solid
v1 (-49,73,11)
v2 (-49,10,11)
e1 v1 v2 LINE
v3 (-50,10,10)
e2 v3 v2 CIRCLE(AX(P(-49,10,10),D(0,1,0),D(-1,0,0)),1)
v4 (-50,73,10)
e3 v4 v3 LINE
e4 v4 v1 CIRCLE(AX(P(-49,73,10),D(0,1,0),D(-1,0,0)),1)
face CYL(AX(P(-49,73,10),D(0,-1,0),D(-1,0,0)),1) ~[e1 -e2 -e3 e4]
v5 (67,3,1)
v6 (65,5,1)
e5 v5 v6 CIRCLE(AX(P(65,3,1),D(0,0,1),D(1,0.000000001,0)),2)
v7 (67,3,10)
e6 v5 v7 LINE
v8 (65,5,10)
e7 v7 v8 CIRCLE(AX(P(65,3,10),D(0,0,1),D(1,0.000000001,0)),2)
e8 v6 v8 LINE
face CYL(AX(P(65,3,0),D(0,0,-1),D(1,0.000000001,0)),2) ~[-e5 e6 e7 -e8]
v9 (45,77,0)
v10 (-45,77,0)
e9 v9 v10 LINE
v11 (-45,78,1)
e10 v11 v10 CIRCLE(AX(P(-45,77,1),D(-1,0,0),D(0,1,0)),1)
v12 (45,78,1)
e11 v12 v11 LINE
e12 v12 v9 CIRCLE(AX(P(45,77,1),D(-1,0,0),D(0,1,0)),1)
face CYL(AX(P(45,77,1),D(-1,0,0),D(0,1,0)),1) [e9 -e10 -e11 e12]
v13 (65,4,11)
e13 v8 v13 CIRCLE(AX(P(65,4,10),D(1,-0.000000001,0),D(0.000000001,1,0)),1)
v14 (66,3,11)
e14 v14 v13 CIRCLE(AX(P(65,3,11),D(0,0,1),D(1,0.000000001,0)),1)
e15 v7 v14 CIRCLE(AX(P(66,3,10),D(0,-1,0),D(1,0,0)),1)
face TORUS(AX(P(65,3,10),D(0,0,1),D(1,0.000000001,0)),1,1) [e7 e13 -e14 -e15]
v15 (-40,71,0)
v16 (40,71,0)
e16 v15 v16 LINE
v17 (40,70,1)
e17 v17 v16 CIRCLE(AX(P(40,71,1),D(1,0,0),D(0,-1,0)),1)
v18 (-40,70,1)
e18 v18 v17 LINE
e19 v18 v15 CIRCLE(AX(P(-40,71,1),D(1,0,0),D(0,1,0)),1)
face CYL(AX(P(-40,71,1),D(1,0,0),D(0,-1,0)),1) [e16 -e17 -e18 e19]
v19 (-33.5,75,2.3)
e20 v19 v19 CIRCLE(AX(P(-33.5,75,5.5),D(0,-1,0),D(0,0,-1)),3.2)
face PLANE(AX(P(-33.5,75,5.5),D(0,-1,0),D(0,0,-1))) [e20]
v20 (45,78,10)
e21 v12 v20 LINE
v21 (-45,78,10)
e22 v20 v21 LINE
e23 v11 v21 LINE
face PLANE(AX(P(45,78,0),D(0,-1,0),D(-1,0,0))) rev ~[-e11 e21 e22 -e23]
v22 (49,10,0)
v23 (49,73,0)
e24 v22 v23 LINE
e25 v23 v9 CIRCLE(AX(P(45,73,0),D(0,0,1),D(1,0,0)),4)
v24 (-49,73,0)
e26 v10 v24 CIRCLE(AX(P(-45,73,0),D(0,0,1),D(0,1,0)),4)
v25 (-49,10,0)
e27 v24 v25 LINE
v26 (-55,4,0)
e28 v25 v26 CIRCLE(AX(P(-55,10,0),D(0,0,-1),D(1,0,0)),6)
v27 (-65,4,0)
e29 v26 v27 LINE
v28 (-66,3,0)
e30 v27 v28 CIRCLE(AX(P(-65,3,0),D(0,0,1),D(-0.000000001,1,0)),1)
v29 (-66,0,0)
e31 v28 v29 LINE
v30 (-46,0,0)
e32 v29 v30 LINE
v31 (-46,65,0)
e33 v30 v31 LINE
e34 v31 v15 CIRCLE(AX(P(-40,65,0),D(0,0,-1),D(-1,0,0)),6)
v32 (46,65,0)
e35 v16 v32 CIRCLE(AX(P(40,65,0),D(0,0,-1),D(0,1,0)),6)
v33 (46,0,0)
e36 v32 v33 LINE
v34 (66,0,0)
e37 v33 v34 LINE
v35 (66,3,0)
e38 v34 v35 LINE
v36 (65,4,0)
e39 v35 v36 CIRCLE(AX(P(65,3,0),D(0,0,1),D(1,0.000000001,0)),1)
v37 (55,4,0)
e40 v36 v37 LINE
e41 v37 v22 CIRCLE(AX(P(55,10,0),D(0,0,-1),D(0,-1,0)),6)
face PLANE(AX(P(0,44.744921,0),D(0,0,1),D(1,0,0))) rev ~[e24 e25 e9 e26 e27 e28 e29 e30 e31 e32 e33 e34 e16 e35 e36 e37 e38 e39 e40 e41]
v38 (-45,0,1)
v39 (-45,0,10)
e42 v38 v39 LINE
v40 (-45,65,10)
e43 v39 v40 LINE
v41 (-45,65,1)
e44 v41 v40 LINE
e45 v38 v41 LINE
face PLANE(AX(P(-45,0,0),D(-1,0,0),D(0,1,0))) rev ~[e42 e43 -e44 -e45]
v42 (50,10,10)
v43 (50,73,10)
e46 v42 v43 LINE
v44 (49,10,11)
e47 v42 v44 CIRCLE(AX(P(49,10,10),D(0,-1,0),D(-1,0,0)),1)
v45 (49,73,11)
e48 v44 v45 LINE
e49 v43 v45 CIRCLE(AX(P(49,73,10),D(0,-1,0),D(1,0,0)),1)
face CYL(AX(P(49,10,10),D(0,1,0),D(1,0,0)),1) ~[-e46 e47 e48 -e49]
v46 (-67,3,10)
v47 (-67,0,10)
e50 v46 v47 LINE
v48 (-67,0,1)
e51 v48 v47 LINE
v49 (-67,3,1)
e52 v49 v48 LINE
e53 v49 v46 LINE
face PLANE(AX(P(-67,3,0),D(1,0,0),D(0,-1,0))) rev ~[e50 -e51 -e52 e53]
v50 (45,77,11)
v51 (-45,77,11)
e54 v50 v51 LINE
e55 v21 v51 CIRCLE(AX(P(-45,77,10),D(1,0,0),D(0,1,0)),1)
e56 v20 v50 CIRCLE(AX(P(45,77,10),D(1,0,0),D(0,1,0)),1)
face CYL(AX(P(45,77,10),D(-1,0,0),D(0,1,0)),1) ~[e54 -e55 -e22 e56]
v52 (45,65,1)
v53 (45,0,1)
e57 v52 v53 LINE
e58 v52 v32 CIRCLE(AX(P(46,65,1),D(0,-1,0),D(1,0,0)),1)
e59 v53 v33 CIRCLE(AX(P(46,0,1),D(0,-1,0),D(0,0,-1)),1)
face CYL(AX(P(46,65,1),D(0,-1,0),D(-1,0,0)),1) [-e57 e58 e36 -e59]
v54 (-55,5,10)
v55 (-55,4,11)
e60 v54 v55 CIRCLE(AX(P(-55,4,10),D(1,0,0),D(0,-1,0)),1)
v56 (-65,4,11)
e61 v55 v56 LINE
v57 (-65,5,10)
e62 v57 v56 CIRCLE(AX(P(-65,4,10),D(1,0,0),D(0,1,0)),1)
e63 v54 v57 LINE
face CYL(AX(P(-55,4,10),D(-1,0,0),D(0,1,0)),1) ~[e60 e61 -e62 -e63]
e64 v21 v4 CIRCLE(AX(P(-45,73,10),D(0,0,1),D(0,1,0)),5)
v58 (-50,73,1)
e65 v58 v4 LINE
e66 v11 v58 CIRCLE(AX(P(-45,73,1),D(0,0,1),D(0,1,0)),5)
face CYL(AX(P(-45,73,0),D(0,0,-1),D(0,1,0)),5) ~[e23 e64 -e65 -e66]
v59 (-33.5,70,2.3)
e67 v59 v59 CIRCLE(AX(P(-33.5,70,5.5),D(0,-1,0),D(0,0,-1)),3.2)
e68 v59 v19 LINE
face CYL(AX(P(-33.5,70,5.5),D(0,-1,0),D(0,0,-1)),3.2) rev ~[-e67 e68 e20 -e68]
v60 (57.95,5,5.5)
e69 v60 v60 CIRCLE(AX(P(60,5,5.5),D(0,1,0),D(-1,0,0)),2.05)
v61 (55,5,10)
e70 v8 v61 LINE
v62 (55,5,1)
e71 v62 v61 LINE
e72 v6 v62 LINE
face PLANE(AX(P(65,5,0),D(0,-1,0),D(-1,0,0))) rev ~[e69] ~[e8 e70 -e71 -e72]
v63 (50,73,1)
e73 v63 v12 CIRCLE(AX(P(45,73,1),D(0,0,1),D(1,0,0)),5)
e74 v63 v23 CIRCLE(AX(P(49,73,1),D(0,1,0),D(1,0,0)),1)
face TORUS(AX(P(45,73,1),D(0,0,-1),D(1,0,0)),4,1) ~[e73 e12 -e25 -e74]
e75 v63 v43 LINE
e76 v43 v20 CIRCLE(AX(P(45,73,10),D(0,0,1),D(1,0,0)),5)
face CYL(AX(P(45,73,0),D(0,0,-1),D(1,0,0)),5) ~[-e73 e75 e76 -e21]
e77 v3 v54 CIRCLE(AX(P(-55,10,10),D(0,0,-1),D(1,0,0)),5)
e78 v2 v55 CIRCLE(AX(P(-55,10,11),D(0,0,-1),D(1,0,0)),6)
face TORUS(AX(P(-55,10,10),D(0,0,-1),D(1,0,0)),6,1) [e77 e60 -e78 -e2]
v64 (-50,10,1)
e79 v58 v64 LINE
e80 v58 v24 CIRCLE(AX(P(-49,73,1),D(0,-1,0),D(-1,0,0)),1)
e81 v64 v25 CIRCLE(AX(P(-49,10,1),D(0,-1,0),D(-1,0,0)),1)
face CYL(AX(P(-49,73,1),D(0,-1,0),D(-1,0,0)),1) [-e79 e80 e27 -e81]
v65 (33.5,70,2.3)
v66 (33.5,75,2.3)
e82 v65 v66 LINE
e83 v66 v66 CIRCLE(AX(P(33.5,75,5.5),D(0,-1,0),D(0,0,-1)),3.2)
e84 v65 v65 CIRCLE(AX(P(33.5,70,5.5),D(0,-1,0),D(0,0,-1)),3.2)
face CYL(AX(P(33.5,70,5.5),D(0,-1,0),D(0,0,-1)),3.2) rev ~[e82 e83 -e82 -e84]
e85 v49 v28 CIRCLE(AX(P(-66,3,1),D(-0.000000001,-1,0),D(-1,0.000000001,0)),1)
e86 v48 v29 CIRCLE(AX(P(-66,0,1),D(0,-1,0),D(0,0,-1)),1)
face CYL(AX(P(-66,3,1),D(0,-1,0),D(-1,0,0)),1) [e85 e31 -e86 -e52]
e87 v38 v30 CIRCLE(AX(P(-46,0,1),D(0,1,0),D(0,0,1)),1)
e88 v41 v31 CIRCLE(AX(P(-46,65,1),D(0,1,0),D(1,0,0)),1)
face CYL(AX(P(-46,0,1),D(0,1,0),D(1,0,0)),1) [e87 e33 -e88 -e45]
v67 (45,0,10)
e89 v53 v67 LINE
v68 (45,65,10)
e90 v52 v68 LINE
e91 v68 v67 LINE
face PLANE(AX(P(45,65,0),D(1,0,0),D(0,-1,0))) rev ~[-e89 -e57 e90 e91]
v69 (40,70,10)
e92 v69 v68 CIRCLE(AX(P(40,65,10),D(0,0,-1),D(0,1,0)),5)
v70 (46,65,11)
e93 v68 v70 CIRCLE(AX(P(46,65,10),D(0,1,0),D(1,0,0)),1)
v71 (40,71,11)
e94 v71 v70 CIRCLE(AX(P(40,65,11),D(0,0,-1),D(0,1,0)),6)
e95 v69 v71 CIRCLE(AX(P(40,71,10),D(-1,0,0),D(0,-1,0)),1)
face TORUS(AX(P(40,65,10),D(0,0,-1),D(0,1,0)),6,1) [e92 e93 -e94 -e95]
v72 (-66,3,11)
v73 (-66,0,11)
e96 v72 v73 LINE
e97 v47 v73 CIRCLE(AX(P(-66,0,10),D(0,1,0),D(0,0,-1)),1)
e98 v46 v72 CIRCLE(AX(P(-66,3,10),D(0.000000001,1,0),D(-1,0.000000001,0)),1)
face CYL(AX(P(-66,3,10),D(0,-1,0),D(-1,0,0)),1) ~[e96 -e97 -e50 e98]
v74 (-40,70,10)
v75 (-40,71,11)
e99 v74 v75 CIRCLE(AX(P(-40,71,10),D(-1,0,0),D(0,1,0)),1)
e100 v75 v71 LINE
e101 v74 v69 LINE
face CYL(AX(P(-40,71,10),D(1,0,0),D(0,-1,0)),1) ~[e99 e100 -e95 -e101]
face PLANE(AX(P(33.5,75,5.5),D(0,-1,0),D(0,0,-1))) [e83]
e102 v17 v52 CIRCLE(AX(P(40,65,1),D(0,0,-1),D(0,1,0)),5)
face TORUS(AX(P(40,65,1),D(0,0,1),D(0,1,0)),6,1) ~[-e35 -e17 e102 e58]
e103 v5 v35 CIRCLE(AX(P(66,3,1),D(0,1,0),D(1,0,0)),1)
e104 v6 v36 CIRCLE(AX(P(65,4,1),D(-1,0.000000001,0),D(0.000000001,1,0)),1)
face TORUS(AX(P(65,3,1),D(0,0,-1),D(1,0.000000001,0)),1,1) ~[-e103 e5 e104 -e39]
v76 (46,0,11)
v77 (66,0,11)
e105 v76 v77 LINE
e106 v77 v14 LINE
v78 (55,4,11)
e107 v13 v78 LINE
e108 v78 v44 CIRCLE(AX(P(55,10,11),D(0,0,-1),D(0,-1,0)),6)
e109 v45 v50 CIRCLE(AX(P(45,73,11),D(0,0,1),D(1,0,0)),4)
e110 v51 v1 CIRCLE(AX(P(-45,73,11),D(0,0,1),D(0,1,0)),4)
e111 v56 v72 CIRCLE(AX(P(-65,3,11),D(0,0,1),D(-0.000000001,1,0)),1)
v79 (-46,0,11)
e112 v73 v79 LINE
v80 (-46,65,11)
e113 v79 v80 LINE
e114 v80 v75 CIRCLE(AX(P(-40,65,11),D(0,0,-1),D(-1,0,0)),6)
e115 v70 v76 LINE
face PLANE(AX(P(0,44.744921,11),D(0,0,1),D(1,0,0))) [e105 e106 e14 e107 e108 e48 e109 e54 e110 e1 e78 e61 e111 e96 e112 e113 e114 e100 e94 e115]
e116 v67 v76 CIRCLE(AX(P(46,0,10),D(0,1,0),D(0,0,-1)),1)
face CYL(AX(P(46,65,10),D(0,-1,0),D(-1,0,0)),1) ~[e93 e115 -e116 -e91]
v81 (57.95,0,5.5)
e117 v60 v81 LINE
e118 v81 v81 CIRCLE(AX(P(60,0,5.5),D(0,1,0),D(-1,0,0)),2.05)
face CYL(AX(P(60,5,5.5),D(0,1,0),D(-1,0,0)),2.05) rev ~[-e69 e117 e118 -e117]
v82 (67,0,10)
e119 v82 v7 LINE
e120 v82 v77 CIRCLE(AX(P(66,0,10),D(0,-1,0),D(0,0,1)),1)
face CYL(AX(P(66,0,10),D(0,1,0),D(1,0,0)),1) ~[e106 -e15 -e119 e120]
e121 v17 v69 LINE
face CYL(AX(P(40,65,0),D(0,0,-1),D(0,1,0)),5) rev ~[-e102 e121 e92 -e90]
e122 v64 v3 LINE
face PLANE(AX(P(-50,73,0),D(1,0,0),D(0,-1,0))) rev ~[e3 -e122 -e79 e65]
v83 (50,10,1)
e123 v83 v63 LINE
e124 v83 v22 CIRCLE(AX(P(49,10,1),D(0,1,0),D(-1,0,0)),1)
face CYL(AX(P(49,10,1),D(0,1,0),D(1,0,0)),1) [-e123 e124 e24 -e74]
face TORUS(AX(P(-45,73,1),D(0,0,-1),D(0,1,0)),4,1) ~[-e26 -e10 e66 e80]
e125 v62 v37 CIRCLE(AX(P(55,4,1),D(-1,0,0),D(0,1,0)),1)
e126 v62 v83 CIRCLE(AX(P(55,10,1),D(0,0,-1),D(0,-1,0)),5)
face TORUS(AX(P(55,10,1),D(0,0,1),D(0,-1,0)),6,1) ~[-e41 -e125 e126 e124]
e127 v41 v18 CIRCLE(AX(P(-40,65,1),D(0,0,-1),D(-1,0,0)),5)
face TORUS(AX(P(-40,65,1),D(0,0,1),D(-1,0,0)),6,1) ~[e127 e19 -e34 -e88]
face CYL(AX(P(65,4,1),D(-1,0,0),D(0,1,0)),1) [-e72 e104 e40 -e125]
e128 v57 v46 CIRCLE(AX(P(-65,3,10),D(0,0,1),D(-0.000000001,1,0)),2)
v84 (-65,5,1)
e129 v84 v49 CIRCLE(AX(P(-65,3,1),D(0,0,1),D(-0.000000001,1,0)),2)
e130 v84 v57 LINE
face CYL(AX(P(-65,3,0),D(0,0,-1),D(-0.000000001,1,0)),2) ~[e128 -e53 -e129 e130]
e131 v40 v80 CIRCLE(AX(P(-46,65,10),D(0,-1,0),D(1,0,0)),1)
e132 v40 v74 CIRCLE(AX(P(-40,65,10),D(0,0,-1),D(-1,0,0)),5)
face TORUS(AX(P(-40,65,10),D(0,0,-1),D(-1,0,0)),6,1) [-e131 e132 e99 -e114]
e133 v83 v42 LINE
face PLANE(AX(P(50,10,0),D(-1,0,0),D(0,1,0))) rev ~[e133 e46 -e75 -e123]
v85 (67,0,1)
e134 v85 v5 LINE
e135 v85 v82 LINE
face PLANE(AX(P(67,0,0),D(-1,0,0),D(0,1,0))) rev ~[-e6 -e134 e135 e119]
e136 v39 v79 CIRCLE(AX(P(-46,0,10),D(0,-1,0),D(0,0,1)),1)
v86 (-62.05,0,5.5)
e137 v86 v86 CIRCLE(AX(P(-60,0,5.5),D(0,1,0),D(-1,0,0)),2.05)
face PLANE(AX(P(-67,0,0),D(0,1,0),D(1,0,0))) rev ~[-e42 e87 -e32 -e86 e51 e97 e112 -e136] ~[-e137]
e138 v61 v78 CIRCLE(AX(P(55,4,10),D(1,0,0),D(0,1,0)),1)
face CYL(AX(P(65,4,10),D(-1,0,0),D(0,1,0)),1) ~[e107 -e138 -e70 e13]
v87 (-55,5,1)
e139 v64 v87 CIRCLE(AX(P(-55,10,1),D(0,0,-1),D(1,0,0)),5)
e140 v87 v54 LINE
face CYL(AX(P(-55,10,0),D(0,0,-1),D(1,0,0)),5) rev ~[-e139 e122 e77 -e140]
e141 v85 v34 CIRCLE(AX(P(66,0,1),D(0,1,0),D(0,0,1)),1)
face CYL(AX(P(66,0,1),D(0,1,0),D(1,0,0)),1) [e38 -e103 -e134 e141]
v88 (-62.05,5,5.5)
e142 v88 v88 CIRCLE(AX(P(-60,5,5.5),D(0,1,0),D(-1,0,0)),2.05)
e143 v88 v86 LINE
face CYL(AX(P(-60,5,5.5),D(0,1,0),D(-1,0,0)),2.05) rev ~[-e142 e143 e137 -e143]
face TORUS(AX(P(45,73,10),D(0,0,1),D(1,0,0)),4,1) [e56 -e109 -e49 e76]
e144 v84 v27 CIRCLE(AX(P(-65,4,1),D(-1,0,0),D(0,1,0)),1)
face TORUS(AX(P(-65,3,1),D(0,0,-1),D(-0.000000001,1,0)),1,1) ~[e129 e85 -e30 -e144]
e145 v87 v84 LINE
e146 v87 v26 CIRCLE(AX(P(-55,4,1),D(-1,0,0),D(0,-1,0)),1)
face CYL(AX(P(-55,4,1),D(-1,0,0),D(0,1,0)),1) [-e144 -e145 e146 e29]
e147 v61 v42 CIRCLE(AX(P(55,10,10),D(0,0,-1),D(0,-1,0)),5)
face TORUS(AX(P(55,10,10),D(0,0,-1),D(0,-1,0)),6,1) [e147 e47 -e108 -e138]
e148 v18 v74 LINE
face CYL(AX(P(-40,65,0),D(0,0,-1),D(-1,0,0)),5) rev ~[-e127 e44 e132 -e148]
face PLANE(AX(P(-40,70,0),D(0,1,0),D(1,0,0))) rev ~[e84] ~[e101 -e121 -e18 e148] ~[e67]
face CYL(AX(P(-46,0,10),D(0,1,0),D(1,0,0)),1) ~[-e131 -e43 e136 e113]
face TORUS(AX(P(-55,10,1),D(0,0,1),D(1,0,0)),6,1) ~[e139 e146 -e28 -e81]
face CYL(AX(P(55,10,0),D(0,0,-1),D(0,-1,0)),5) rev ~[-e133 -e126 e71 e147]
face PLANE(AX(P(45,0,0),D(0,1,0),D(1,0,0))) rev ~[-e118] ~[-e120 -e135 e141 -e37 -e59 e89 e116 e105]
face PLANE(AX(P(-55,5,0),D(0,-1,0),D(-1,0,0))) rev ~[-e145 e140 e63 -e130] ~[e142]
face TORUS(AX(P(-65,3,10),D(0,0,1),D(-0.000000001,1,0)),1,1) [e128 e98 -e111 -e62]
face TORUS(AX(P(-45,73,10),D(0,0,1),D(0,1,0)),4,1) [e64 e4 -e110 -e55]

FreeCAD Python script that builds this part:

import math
import FreeCAD as App
import Part
import Sketcher

V = App.Vector
Q = App.Units.Quantity


def edges_at(feature, points):
    """Names of the edges that pass closest to the given points."""
    edges = feature.Shape.Edges
    near = lambda p: min(range(len(edges)), key=lambda i: edges[i].distToShape(Part.Vertex(*p))[0])
    return sorted({f"Edge{near(p) + 1}" for p in points})

doc = App.newDocument("Part")
params = doc.addObject("Spreadsheet::Sheet", "Params")
for row, (alias, value) in enumerate([
    ("sketch1_radius", "5 mm"),
    ("sketch1_radius2", "2 mm"),
    ("sketch1_width", "22 mm"),
    ("sketch1_width2", "80 mm"),
    ("sketch1_height", "65 mm"),
    ("pad1_length", "11 mm"),
    ("fillet_radius", "1 mm"),
    ("sketch2_diameter", "6.4 mm"),
    ("pocket1_length", "5 mm"),
    ("sketch3_diameter", "4.1 mm"),
], start=1):
    params.set(f"A{row}", alias)
    params.set(f"B{row}", "=" + value)
    params.setAlias(f"B{row}", alias)

body = doc.addObject("PartDesign::Body", "Body")

sketch1 = body.newObject("Sketcher::SketchObject", "Sketch")
sketch1.AttachmentSupport = (doc.getObject("XY_Plane"), [""])
sketch1.MapMode = "FlatFace"
sketch1.addGeometry(Part.LineSegment(V(-67, 0, 0), V(-45, 0, 0)), False)
sketch1.addGeometry(Part.LineSegment(V(-45, 0, 0), V(-45, 65, 0)), False)
sketch1.addGeometry(Part.ArcOfCircle(Part.Circle(V(-40, 65, 0), V(0, 0, 1), 5), math.radians(90), math.radians(180)), False)
sketch1.addGeometry(Part.LineSegment(V(-40, 70, 0), V(40, 70, 0)), False)
sketch1.addGeometry(Part.ArcOfCircle(Part.Circle(V(40, 65, 0), V(0, 0, 1), 5), math.radians(0), math.radians(90)), False)
sketch1.addGeometry(Part.LineSegment(V(45, 65, 0), V(45, 0, 0)), False)
sketch1.addGeometry(Part.LineSegment(V(45, 0, 0), V(67, 0, 0)), False)
sketch1.addGeometry(Part.LineSegment(V(67, 0, 0), V(67, 3, 0)), False)
sketch1.addGeometry(Part.ArcOfCircle(Part.Circle(V(65, 3, 0), V(0, 0, 1), 2), math.radians(0), math.radians(90)), False)
sketch1.addGeometry(Part.LineSegment(V(65, 5, 0), V(55, 5, 0)), False)
sketch1.addGeometry(Part.ArcOfCircle(Part.Circle(V(55, 10, 0), V(0, 0, 1), 5), math.radians(180), math.radians(270)), False)
sketch1.addGeometry(Part.LineSegment(V(50, 10, 0), V(50, 73, 0)), False)
sketch1.addGeometry(Part.ArcOfCircle(Part.Circle(V(45, 73, 0), V(0, 0, 1), 5), math.radians(0), math.radians(90)), False)
sketch1.addGeometry(Part.LineSegment(V(45, 78, 0), V(-45, 78, 0)), False)
sketch1.addGeometry(Part.ArcOfCircle(Part.Circle(V(-45, 73, 0), V(0, 0, 1), 5), math.radians(90), math.radians(180)), False)
sketch1.addGeometry(Part.LineSegment(V(-50, 73, 0), V(-50, 10, 0)), False)
sketch1.addGeometry(Part.ArcOfCircle(Part.Circle(V(-55, 10, 0), V(0, 0, 1), 5), math.radians(-90), math.radians(0)), False)
sketch1.addGeometry(Part.LineSegment(V(-55, 5, 0), V(-65, 5, 0)), False)
sketch1.addGeometry(Part.ArcOfCircle(Part.Circle(V(-65, 3, 0), V(0, 0, 1), 2), math.radians(90), math.radians(180)), False)
sketch1.addGeometry(Part.LineSegment(V(-67, 3, 0), V(-67, 0, 0)), False)
sketch1.addConstraint(Sketcher.Constraint("Coincident", 0, 2, 1, 1))
sketch1.addConstraint(Sketcher.Constraint("Tangent", 1, 2, 2, 2))
sketch1.addConstraint(Sketcher.Constraint("Tangent", 2, 1, 3, 1))
sketch1.addConstraint(Sketcher.Constraint("Tangent", 3, 2, 4, 2))
sketch1.addConstraint(Sketcher.Constraint("Tangent", 4, 1, 5, 1))
sketch1.addConstraint(Sketcher.Constraint("Coincident", 5, 2, 6, 1))
sketch1.addConstraint(Sketcher.Constraint("Coincident", 6, 2, 7, 1))
sketch1.addConstraint(Sketcher.Constraint("Tangent", 7, 2, 8, 1))
sketch1.addConstraint(Sketcher.Constraint("Tangent", 8, 2, 9, 1))
sketch1.addConstraint(Sketcher.Constraint("Tangent", 9, 2, 10, 2))
sketch1.addConstraint(Sketcher.Constraint("Tangent", 10, 1, 11, 1))
sketch1.addConstraint(Sketcher.Constraint("Tangent", 11, 2, 12, 1))
sketch1.addConstraint(Sketcher.Constraint("Tangent", 12, 2, 13, 1))
sketch1.addConstraint(Sketcher.Constraint("Tangent", 13, 2, 14, 1))
sketch1.addConstraint(Sketcher.Constraint("Tangent", 14, 2, 15, 1))
sketch1.addConstraint(Sketcher.Constraint("Tangent", 15, 2, 16, 2))
sketch1.addConstraint(Sketcher.Constraint("Tangent", 16, 1, 17, 1))
sketch1.addConstraint(Sketcher.Constraint("Tangent", 17, 2, 18, 1))
sketch1.addConstraint(Sketcher.Constraint("Tangent", 18, 2, 19, 1))
sketch1.addConstraint(Sketcher.Constraint("Coincident", 19, 2, 0, 1))
sketch1.addConstraint(Sketcher.Constraint("Horizontal", 0))
sketch1.addConstraint(Sketcher.Constraint("Vertical", 1))
sketch1.addConstraint(Sketcher.Constraint("Horizontal", 3))
sketch1.addConstraint(Sketcher.Constraint("Vertical", 5))
sketch1.addConstraint(Sketcher.Constraint("Horizontal", 6))
sketch1.addConstraint(Sketcher.Constraint("Vertical", 7))
sketch1.addConstraint(Sketcher.Constraint("Horizontal", 9))
sketch1.addConstraint(Sketcher.Constraint("Vertical", 11))
sketch1.addConstraint(Sketcher.Constraint("Horizontal", 13))
sketch1.addConstraint(Sketcher.Constraint("Vertical", 15))
sketch1.addConstraint(Sketcher.Constraint("Horizontal", 17))
sketch1.addConstraint(Sketcher.Constraint("Vertical", 19))
sketch1.addConstraint(Sketcher.Constraint("Equal", 2, 4))
sketch1.addConstraint(Sketcher.Constraint("Equal", 4, 10))
sketch1.addConstraint(Sketcher.Constraint("Equal", 10, 12))
sketch1.addConstraint(Sketcher.Constraint("Equal", 12, 14))
sketch1.addConstraint(Sketcher.Constraint("Equal", 14, 16))
sketch1.addConstraint(Sketcher.Constraint("Equal", 8, 18))
sketch1.addConstraint(Sketcher.Constraint("Symmetric", 0, 2, 5, 2, -1, 1))
sketch1.addConstraint(Sketcher.Constraint("Symmetric", 10, 3, 16, 3, -2))
sketch1.addConstraint(Sketcher.Constraint("Symmetric", 6, 2, 19, 2, -2))
sketch1.addConstraint(Sketcher.Constraint("Vertical", 14, 3, 0, 2))
sketch1.addConstraint(Sketcher.Constraint("Radius", 2, Q("5 mm")))
sketch1.addConstraint(Sketcher.Constraint("Radius", 8, Q("2 mm")))
sketch1.addConstraint(Sketcher.Constraint("DistanceX", 0, 1, 0, 2, Q("22 mm")))
sketch1.addConstraint(Sketcher.Constraint("DistanceX", 3, 1, 3, 2, Q("80 mm")))
sketch1.addConstraint(Sketcher.Constraint("DistanceY", 1, 1, 1, 2, Q("65 mm")))
sketch1.addConstraint(Sketcher.Constraint("DistanceY", 7, 1, 7, 2, Q("3 mm")))
sketch1.addConstraint(Sketcher.Constraint("DistanceY", 11, 1, 11, 2, Q("63 mm")))
sketch1.setExpression("Constraints[42]", "Params.sketch1_radius")
sketch1.setExpression("Constraints[43]", "Params.sketch1_radius2")
sketch1.setExpression("Constraints[44]", "Params.sketch1_width")
sketch1.setExpression("Constraints[45]", "Params.sketch1_width2")
sketch1.setExpression("Constraints[46]", "Params.sketch1_height")
pad1 = body.newObject("PartDesign::Pad", "Pad")
pad1.Profile = sketch1
pad1.setExpression("Length", "Params.pad1_length")
doc.recompute()

fillet = body.newObject("PartDesign::Fillet", "Fillet")
fillet.Base = (pad1, edges_at(pad1, [
    (-66.414, 4.414, 11),
    (-67, 1.5, 11),
    (-50, 41.5, 0),
    (-48.536, 76.536, 0),
    (0, 78, 0),
    (48.536, 76.536, 0),
    (50, 41.5, 0),
    (51.464, 6.464, 0),
    (60, 5, 0),
    (66.414, 4.414, 0),
    (67, 1.5, 0),
    (45, 32.5, 0),
    (43.536, 68.536, 0),
    (0, 70, 0),
    (-43.536, 68.536, 0),
    (-45, 32.5, 11),
    (-45, 32.5, 0),
    (-67, 1.5, 0),
    (-66.414, 4.414, 0),
    (-60, 5, 0),
    (-51.464, 6.464, 0),
    (-43.536, 68.536, 11),
    (0, 70, 11),
    (43.536, 68.536, 11),
    (45, 32.5, 11),
    (67, 1.5, 11),
    (-51.464, 6.464, 11),
    (66.414, 4.414, 11),
    (60, 5, 11),
    (51.464, 6.464, 11),
    (50, 41.5, 11),
    (48.536, 76.536, 11),
    (0, 78, 11),
    (-48.536, 76.536, 11),
    (-50, 41.5, 11),
    (-60, 5, 11),
]))
fillet.setExpression("Radius", "Params.fillet_radius")

sketch2 = body.newObject("Sketcher::SketchObject", "Sketch001")
sketch2.AttachmentSupport = (doc.getObject("XZ_Plane"), [""])
sketch2.MapMode = "FlatFace"
sketch2.AttachmentOffset = App.Placement(V(0, 0, -70), App.Rotation())
sketch2.addGeometry(Part.Circle(V(-33.5, 5.5, 0), V(0, 0, 1), 3.2), False)
sketch2.addGeometry(Part.Circle(V(33.5, 5.5, 0), V(0, 0, 1), 3.2), False)
sketch2.addConstraint(Sketcher.Constraint("Equal", 0, 1))
sketch2.addConstraint(Sketcher.Constraint("Symmetric", 0, 3, 1, 3, -2))
sketch2.addConstraint(Sketcher.Constraint("Diameter", 0, Q("6.4 mm")))
sketch2.addConstraint(Sketcher.Constraint("DistanceX", 0, 3, 1, 3, Q("67 mm")))
sketch2.addConstraint(Sketcher.Constraint("DistanceY", -1, 1, 0, 3, Q("5.5 mm")))
sketch2.setExpression("Constraints[2]", "Params.sketch2_diameter")
pocket1 = body.newObject("PartDesign::Pocket", "Pocket")
pocket1.Profile = sketch2
pocket1.setExpression("Length", "Params.pocket1_length")

sketch3 = body.newObject("Sketcher::SketchObject", "Sketch002")
sketch3.AttachmentSupport = (doc.getObject("XZ_Plane"), [""])
sketch3.MapMode = "FlatFace"
sketch3.AttachmentOffset = App.Placement(V(0, 0, -5), App.Rotation())
sketch3.addGeometry(Part.Circle(V(-60, 5.5, 0), V(0, 0, 1), 2), False)
sketch3.addGeometry(Part.Circle(V(60, 5.5, 0), V(0, 0, 1), 2), False)
sketch3.addConstraint(Sketcher.Constraint("Equal", 0, 1))
sketch3.addConstraint(Sketcher.Constraint("Symmetric", 0, 3, 1, 3, -2))
sketch3.addConstraint(Sketcher.Constraint("Diameter", 0, Q("4.1 mm")))
sketch3.addConstraint(Sketcher.Constraint("DistanceX", 0, 3, -1, 1, Q("60 mm")))
sketch3.addConstraint(Sketcher.Constraint("DistanceY", -1, 1, 0, 3, Q("5.5 mm")))
sketch3.setExpression("Constraints[2]", "Params.sketch3_diameter")
pocket2 = body.newObject("PartDesign::Pocket", "Pocket001")
pocket2.Profile = sketch3
pocket2.Type = "ThroughAll"
pocket2.Reversed = True

doc.recompute()
